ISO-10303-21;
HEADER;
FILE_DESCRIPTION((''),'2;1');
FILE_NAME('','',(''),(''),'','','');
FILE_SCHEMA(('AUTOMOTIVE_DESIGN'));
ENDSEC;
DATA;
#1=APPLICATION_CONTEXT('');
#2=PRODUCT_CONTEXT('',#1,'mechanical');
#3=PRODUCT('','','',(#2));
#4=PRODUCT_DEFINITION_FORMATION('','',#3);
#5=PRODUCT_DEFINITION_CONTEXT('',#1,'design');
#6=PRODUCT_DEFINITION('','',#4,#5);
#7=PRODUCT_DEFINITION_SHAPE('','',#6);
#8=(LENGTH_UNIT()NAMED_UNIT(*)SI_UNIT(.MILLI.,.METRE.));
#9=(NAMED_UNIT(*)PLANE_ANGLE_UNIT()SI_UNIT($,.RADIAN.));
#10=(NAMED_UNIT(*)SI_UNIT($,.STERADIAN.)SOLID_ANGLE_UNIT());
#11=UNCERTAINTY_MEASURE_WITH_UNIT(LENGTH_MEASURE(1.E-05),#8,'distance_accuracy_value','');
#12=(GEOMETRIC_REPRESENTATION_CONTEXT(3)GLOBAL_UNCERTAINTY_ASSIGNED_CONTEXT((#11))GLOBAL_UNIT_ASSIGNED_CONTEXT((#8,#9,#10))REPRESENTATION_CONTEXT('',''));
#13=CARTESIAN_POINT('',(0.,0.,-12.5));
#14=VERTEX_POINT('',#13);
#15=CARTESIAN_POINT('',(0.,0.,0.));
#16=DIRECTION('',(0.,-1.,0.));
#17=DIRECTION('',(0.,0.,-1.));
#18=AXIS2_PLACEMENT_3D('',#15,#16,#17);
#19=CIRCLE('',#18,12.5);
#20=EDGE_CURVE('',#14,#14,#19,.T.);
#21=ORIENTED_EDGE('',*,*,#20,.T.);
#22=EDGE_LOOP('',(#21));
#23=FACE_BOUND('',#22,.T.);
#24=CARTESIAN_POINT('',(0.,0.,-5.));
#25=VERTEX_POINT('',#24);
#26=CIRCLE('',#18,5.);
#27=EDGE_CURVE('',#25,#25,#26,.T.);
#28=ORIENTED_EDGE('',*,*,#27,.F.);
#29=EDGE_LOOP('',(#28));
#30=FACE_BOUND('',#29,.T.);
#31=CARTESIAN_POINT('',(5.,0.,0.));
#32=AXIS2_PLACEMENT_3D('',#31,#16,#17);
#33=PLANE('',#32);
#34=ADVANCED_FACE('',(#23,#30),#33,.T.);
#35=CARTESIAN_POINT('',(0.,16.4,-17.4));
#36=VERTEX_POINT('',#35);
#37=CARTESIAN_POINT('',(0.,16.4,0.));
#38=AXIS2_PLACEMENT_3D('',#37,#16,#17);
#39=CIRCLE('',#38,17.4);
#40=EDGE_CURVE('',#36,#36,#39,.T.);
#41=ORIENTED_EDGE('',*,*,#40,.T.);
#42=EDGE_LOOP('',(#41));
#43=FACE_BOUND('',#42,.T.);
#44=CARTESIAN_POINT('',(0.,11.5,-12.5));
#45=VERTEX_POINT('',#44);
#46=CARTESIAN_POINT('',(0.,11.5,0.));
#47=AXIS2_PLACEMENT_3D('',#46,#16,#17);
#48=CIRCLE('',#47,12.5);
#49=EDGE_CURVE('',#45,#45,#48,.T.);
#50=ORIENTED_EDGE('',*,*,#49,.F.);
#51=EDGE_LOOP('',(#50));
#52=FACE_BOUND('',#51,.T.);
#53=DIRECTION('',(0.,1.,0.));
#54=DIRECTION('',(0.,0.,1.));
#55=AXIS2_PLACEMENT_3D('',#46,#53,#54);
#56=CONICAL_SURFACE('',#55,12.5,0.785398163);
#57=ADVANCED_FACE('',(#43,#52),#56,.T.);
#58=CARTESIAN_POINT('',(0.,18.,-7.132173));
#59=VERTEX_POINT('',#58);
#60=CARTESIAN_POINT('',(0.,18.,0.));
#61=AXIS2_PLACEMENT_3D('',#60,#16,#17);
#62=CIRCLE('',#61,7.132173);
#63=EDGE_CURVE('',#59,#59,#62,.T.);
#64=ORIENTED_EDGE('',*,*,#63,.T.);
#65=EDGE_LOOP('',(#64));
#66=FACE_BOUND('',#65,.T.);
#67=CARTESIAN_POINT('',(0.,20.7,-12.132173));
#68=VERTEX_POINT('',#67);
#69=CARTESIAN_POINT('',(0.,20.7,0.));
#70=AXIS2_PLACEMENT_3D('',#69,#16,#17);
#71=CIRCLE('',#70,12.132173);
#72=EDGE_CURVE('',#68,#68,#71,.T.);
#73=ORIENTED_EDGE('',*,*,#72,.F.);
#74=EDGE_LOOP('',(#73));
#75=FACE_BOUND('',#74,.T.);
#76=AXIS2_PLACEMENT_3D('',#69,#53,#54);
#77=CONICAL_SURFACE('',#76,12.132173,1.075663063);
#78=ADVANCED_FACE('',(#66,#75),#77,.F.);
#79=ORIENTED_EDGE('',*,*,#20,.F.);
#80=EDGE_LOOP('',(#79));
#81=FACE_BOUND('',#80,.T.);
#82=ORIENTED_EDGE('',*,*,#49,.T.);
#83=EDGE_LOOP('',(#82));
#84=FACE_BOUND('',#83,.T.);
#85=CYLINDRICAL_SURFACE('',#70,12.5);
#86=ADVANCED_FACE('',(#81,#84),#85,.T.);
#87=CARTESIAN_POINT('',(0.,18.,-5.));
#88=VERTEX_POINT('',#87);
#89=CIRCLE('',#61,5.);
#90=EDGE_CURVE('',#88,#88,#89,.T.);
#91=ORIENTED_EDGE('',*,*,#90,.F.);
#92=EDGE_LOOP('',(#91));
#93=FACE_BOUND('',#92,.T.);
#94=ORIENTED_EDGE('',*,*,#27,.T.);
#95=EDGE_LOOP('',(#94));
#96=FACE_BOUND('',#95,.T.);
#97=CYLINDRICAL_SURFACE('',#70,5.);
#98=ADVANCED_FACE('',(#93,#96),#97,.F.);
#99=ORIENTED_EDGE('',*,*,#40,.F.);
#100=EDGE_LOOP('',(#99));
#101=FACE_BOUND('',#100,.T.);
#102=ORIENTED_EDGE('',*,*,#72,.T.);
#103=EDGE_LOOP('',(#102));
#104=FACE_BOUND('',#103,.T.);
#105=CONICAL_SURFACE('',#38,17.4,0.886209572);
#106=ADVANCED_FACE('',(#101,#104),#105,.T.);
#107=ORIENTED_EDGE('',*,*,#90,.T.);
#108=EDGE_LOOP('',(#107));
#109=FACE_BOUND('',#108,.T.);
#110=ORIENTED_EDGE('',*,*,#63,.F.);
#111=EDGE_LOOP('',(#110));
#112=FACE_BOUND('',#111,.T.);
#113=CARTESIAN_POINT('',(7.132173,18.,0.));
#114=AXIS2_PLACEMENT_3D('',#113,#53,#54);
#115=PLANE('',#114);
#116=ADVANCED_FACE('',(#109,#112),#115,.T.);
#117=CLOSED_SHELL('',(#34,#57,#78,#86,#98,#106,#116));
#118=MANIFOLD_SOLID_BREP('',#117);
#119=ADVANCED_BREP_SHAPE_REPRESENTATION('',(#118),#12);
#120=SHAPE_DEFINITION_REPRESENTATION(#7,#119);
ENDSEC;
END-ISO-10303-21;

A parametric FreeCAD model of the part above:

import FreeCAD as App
import Part
import Sketcher
Q = App.Units.Quantity


def add_polygon(sketch, points):
    """Adds a closed chain of lines whose ends are joined by coincident constraints."""
    first, n = sketch.GeometryCount, len(points)
    for a, b in zip(points, points[1:] + points[:1]):
        sketch.addGeometry(Part.LineSegment(App.Vector(*a, 0), App.Vector(*b, 0)), False)
    for i in range(n):
        sketch.addConstraint(Sketcher.Constraint("Coincident", first + i, 2, first + (i + 1) % n, 1))

doc = App.newDocument("Part")
body = doc.addObject("PartDesign::Body", "Body")

# Sketch on XY plane
sketch1 = doc.addObject("Sketcher::SketchObject", "Sketch")
body.addObject(sketch1)
sketch1.AttachmentSupport = (doc.XY_Plane, [""])
sketch1.MapMode = "FlatFace"
add_polygon(sketch1, [(17.4, 16.4), (12.132173, 20.7), (7.132173, 18), (5, 18), (5, 0), (12.5, 0), (12.5, 11.5)])  # lines 0-6
sketch1.addConstraint(Sketcher.Constraint("Horizontal", 2))
sketch1.addConstraint(Sketcher.Constraint("Vertical", 3))
sketch1.addConstraint(Sketcher.Constraint("Horizontal", 4))
sketch1.addConstraint(Sketcher.Constraint("Vertical", 5))
sketch1.addConstraint(Sketcher.Constraint("PointOnObject", 3, 2, -1))
sketch1.addConstraint(Sketcher.Constraint("DistanceY", 3, 2, 3, 1, Q("18 mm")))
sketch1.addConstraint(Sketcher.Constraint("Angle", 6, Q("45 deg")))
sketch1.addConstraint(Sketcher.Constraint("DistanceX", 4, 1, 4, 2, Q("7.5 mm")))
sketch1.addConstraint(Sketcher.Constraint("DistanceY", 5, 1, 5, 2, Q("11.5 mm")))
sketch1.addConstraint(Sketcher.Constraint("DistanceX", -1, 1, 2, 2, Q("5 mm")))
sketch1.addConstraint(Sketcher.Constraint("DistanceX", 1, 2, 0, 2, Q("5 mm")))
sketch1.addConstraint(Sketcher.Constraint("Distance", 0, Q("6.8 mm")))
sketch1.addConstraint(Sketcher.Constraint("DistanceY", -1, 1, 0, 2, Q("20.7 mm")))
sketch1.addConstraint(Sketcher.Constraint("DistanceX", -1, 1, 6, 2, Q("17.4 mm")))
revolution = doc.addObject("PartDesign::Revolution", "Revolution")
body.addObject(revolution)
revolution.Profile = sketch1
revolution.ReferenceAxis = (sketch1, ["V_Axis"])
revolution.Angle = 360

doc.recompute()
